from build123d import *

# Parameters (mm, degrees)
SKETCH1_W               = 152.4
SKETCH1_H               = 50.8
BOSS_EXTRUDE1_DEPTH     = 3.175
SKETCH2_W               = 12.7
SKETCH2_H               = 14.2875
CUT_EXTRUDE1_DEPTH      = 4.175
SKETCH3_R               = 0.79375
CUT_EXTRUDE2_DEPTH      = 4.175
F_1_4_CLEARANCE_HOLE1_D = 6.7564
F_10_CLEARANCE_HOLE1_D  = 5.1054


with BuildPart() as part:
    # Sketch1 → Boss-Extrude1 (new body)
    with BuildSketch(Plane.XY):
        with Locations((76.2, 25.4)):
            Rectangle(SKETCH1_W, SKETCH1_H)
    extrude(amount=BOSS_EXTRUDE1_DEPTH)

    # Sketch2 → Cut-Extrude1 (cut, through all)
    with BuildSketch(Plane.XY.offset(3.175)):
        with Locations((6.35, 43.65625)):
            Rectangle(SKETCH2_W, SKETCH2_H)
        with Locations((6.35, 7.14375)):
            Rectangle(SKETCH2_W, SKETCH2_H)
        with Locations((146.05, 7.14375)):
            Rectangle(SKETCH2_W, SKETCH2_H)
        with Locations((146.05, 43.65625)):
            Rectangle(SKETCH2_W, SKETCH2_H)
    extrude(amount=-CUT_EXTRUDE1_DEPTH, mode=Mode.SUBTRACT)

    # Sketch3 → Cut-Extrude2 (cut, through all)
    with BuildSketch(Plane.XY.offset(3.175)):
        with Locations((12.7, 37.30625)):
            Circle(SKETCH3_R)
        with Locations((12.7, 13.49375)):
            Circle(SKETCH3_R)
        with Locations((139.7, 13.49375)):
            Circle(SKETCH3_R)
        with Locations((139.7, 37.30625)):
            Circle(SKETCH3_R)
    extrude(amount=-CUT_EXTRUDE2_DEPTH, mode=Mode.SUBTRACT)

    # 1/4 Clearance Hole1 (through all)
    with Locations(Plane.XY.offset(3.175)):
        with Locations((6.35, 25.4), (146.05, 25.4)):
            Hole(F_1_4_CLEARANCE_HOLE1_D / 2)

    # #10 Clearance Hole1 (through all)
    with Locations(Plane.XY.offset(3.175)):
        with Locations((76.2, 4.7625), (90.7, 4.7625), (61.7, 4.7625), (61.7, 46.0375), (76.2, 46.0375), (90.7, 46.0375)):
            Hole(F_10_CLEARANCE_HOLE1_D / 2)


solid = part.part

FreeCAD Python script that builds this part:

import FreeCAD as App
import Part
import Sketcher
Q = App.Units.Quantity


def add_polygon(sketch, points):
    """Adds a closed chain of lines whose ends are joined by coincident constraints."""
    first, n = sketch.GeometryCount, len(points)
    for a, b in zip(points, points[1:] + points[:1]):
        sketch.addGeometry(Part.LineSegment(App.Vector(*a, 0), App.Vector(*b, 0)), False)
    for i in range(n):
        sketch.addConstraint(Sketcher.Constraint("Coincident", first + i, 2, first + (i + 1) % n, 1))

doc = App.newDocument("Part")
body = doc.addObject("PartDesign::Body", "Body")

# Sketch on XY plane
sketch1 = body.newObject("Sketcher::SketchObject", "Sketch")
sketch1.AttachmentSupport = (doc.getObject("XY_Plane"), [""])
sketch1.MapMode = "FlatFace"
add_polygon(sketch1, [(0, 51), (0, 0), (152, 0), (152, 51)])  # lines 0-3
sketch1.addConstraint(Sketcher.Constraint("Vertical", 0))
sketch1.addConstraint(Sketcher.Constraint("Horizontal", 1))
sketch1.addConstraint(Sketcher.Constraint("Vertical", 2))
sketch1.addConstraint(Sketcher.Constraint("Horizontal", 3))
sketch1.addConstraint(Sketcher.Constraint("Coincident", 0, 2, -1, 1))
sketch1.addConstraint(Sketcher.Constraint("DistanceX", 1, 1, 1, 2, Q("6 in")))
sketch1.addConstraint(Sketcher.Constraint("DistanceY", 0, 2, 0, 1, Q("2 in")))
pad1 = body.newObject("PartDesign::Pad", "Pad")
pad1.Profile = sketch1
pad1.Length = Q("0.125 in")

# Sketch on XY plane
sketch2 = body.newObject("Sketcher::SketchObject", "Sketch001")
sketch2.AttachmentSupport = (doc.getObject("XY_Plane"), [""])
sketch2.MapMode = "FlatFace"
sketch2.AttachmentOffset = App.Placement(App.Vector(0, 0, 0.125 * 25.4), App.Rotation())
add_polygon(sketch2, [(0, 51), (0, 37), (13, 37), (13, 51)])  # lines 0-3
add_polygon(sketch2, [(0, 14), (0, 0), (13, 0), (13, 14)])  # lines 4-7
add_polygon(sketch2, [(140, 14), (140, 0), (152, 0), (152, 14)])  # lines 8-11
add_polygon(sketch2, [(140, 51), (140, 37), (152, 37), (152, 51)])  # lines 12-15
sketch2.addConstraint(Sketcher.Constraint("Vertical", 0))
sketch2.addConstraint(Sketcher.Constraint("Horizontal", 1))
sketch2.addConstraint(Sketcher.Constraint("Vertical", 2))
sketch2.addConstraint(Sketcher.Constraint("Horizontal", 3))
sketch2.addConstraint(Sketcher.Constraint("Vertical", 4))
sketch2.addConstraint(Sketcher.Constraint("Horizontal", 5))
sketch2.addConstraint(Sketcher.Constraint("Vertical", 6))
sketch2.addConstraint(Sketcher.Constraint("Horizontal", 7))
sketch2.addConstraint(Sketcher.Constraint("Vertical", 8))
sketch2.addConstraint(Sketcher.Constraint("Horizontal", 9))
sketch2.addConstraint(Sketcher.Constraint("Vertical", 10))
sketch2.addConstraint(Sketcher.Constraint("Horizontal", 11))
sketch2.addConstraint(Sketcher.Constraint("Vertical", 12))
sketch2.addConstraint(Sketcher.Constraint("Horizontal", 13))
sketch2.addConstraint(Sketcher.Constraint("Vertical", 14))
sketch2.addConstraint(Sketcher.Constraint("Horizontal", 15))
sketch2.addConstraint(Sketcher.Constraint("Coincident", 4, 2, -1, 1))
sketch2.addConstraint(Sketcher.Constraint("PointOnObject", 0, 2, -2))
sketch2.addConstraint(Sketcher.Constraint("PointOnObject", 8, 2, -1))
sketch2.addConstraint(Sketcher.Constraint("Horizontal", 7, 2, 10, 2))
sketch2.addConstraint(Sketcher.Constraint("Horizontal", 1, 2, 12, 2))
sketch2.addConstraint(Sketcher.Constraint("Horizontal", 3, 2, 14, 2))
sketch2.addConstraint(Sketcher.Constraint("Vertical", 2, 2, 5, 2))
sketch2.addConstraint(Sketcher.Constraint("Vertical", 11, 2, 12, 2))
sketch2.addConstraint(Sketcher.Constraint("Vertical", 10, 2, 13, 2))
sketch2.addConstraint(Sketcher.Constraint("Equal", 7, 9))
sketch2.addConstraint(Sketcher.Constraint("Equal", 2, 4))
sketch2.addConstraint(Sketcher.Constraint("DistanceX", 1, 1, 1, 2, Q("0.5 in")))
sketch2.addConstraint(Sketcher.Constraint("DistanceY", -1, 1, 2, 2, Q("2 in")))
sketch2.addConstraint(Sketcher.Constraint("DistanceX", -1, 1, 9, 2, Q("6 in")))
sketch2.addConstraint(Sketcher.Constraint("DistanceY", 0, 2, 0, 1, Q("0.5625 in")))
pocket1 = body.newObject("PartDesign::Pocket", "Pocket")
pocket1.Profile = sketch2
pocket1.Type = "ThroughAll"

# Sketch on XY plane
sketch3 = body.newObject("Sketcher::SketchObject", "Sketch002")
sketch3.AttachmentSupport = (doc.getObject("XY_Plane"), [""])
sketch3.MapMode = "FlatFace"
sketch3.AttachmentOffset = App.Placement(App.Vector(0, 0, 0.125 * 25.4), App.Rotation())
sketch3.addGeometry(Part.Circle(App.Vector(12.7, 37.3, 0), App.Vector(0, 0, 1), 0.8), False)
sketch3.addGeometry(Part.Circle(App.Vector(12.7, 13.5, 0), App.Vector(0, 0, 1), 0.8), False)
sketch3.addGeometry(Part.Circle(App.Vector(139.7, 13.5, 0), App.Vector(0, 0, 1), 0.8), False)
sketch3.addGeometry(Part.Circle(App.Vector(139.7, 37.3, 0), App.Vector(0, 0, 1), 0.8), False)
sketch3.addConstraint(Sketcher.Constraint("Equal", 0, 1))
sketch3.addConstraint(Sketcher.Constraint("Equal", 1, 2))
sketch3.addConstraint(Sketcher.Constraint("Equal", 2, 3))
sketch3.addConstraint(Sketcher.Constraint("Horizontal", 1, 3, 2, 3))
sketch3.addConstraint(Sketcher.Constraint("Horizontal", 0, 3, 3, 3))
sketch3.addConstraint(Sketcher.Constraint("Vertical", 0, 3, 1, 3))
sketch3.addConstraint(Sketcher.Constraint("Vertical", 2, 3, 3, 3))
sketch3.addConstraint(Sketcher.Constraint("Diameter", 0, Q("0.0625 in")))
sketch3.addConstraint(Sketcher.Constraint("DistanceX", 1, 3, 2, 3, Q("5 in")))
sketch3.addConstraint(Sketcher.Constraint("DistanceX", -1, 1, 0, 3, Q("0.5 in")))
sketch3.addConstraint(Sketcher.Constraint("DistanceY", -1, 1, 0, 3, Q("1.46875 in")))
sketch3.addConstraint(Sketcher.Constraint("DistanceY", -1, 1, 1, 3, Q("0.53125 in")))
pocket2 = body.newObject("PartDesign::Pocket", "Pocket001")
pocket2.Profile = sketch3
pocket2.Type = "ThroughAll"

# Sketch on XY plane
sketch4 = body.newObject("Sketcher::SketchObject", "Sketch003")
sketch4.AttachmentSupport = (doc.getObject("XY_Plane"), [""])
sketch4.MapMode = "FlatFace"
sketch4.AttachmentOffset = App.Placement(App.Vector(0, 0, 0.125 * 25.4), App.Rotation())
sketch4.addGeometry(Part.Circle(App.Vector(6.3, 25.4, 0), App.Vector(0, 0, 1), 3.4), False)
sketch4.addGeometry(Part.Circle(App.Vector(146.1, 25.4, 0), App.Vector(0, 0, 1), 3.4), False)
sketch4.addConstraint(Sketcher.Constraint("Equal", 0, 1))
sketch4.addConstraint(Sketcher.Constraint("Horizontal", 0, 3, 1, 3))
sketch4.addConstraint(Sketcher.Constraint("Diameter", 0, Q("0.266 in")))
sketch4.addConstraint(Sketcher.Constraint("DistanceY", -1, 1, 0, 3, Q("1 in")))
sketch4.addConstraint(Sketcher.Constraint("DistanceX", 0, 3, 1, 3, Q("5.5 in")))
sketch4.addConstraint(Sketcher.Constraint("DistanceX", -1, 1, 0, 3, Q("0.25 in")))
doc.recompute()
hole = body.newObject("PartDesign::Hole", "Hole")
hole.Profile = sketch4
hole.ThreadType = "None"
hole.Diameter = Q("0.266 in")
hole.DepthType = "ThroughAll"

# Sketch on XY plane
sketch5 = body.newObject("Sketcher::SketchObject", "Sketch004")
sketch5.AttachmentSupport = (doc.getObject("XY_Plane"), [""])
sketch5.MapMode = "FlatFace"
sketch5.AttachmentOffset = App.Placement(App.Vector(0, 0, 0.125 * 25.4), App.Rotation())
sketch5.addGeometry(Part.Circle(App.Vector(76.2, 4.8, 0), App.Vector(0, 0, 1), 2.6), False)
sketch5.addGeometry(Part.Circle(App.Vector(90.7, 4.8, 0), App.Vector(0, 0, 1), 2.6), False)
sketch5.addGeometry(Part.Circle(App.Vector(61.7, 4.8, 0), App.Vector(0, 0, 1), 2.6), False)
sketch5.addGeometry(Part.Circle(App.Vector(61.7, 46, 0), App.Vector(0, 0, 1), 2.6), False)
sketch5.addGeometry(Part.Circle(App.Vector(76.2, 46, 0), App.Vector(0, 0, 1), 2.6), False)
sketch5.addGeometry(Part.Circle(App.Vector(90.7, 46, 0), App.Vector(0, 0, 1), 2.6), False)
sketch5.addConstraint(Sketcher.Constraint("Equal", 0, 1))
sketch5.addConstraint(Sketcher.Constraint("Equal", 1, 2))
sketch5.addConstraint(Sketcher.Constraint("Equal", 2, 3))
sketch5.addConstraint(Sketcher.Constraint("Equal", 3, 4))
sketch5.addConstraint(Sketcher.Constraint("Equal", 4, 5))
sketch5.addConstraint(Sketcher.Constraint("Horizontal", 0, 3, 1, 3))
sketch5.addConstraint(Sketcher.Constraint("Horizontal", 1, 3, 2, 3))
sketch5.addConstraint(Sketcher.Constraint("Horizontal", 3, 3, 4, 3))
sketch5.addConstraint(Sketcher.Constraint("Horizontal", 4, 3, 5, 3))
sketch5.addConstraint(Sketcher.Constraint("Vertical", 2, 3, 3, 3))
sketch5.addConstraint(Sketcher.Constraint("Vertical", 0, 3, 4, 3))
sketch5.addConstraint(Sketcher.Constraint("Vertical", 1, 3, 5, 3))
sketch5.addConstraint(Sketcher.Constraint("Diameter", 0, Q("0.201 in")))
sketch5.addConstraint(Sketcher.Constraint("DistanceX", -1, 1, 0, 3, Q("3 in")))
sketch5.addConstraint(Sketcher.Constraint("DistanceY", -1, 1, 0, 3, Q("0.1875 in")))
sketch5.addConstraint(Sketcher.Constraint("DistanceY", -1, 1, 3, 3, Q("1.8125 in")))
sketch5.addConstraint(Sketcher.Constraint("DistanceX", -1, 1, 1, 3, Q("90.7 mm")))
sketch5.addConstraint(Sketcher.Constraint("DistanceX", -1, 1, 2, 3, Q("61.7 mm")))
doc.recompute()
hole2 = body.newObject("PartDesign::Hole", "Hole001")
hole2.Profile = sketch5
hole2.ThreadType = "None"
hole2.Diameter = Q("0.201 in")
hole2.DepthType = "ThroughAll"

doc.recompute()
